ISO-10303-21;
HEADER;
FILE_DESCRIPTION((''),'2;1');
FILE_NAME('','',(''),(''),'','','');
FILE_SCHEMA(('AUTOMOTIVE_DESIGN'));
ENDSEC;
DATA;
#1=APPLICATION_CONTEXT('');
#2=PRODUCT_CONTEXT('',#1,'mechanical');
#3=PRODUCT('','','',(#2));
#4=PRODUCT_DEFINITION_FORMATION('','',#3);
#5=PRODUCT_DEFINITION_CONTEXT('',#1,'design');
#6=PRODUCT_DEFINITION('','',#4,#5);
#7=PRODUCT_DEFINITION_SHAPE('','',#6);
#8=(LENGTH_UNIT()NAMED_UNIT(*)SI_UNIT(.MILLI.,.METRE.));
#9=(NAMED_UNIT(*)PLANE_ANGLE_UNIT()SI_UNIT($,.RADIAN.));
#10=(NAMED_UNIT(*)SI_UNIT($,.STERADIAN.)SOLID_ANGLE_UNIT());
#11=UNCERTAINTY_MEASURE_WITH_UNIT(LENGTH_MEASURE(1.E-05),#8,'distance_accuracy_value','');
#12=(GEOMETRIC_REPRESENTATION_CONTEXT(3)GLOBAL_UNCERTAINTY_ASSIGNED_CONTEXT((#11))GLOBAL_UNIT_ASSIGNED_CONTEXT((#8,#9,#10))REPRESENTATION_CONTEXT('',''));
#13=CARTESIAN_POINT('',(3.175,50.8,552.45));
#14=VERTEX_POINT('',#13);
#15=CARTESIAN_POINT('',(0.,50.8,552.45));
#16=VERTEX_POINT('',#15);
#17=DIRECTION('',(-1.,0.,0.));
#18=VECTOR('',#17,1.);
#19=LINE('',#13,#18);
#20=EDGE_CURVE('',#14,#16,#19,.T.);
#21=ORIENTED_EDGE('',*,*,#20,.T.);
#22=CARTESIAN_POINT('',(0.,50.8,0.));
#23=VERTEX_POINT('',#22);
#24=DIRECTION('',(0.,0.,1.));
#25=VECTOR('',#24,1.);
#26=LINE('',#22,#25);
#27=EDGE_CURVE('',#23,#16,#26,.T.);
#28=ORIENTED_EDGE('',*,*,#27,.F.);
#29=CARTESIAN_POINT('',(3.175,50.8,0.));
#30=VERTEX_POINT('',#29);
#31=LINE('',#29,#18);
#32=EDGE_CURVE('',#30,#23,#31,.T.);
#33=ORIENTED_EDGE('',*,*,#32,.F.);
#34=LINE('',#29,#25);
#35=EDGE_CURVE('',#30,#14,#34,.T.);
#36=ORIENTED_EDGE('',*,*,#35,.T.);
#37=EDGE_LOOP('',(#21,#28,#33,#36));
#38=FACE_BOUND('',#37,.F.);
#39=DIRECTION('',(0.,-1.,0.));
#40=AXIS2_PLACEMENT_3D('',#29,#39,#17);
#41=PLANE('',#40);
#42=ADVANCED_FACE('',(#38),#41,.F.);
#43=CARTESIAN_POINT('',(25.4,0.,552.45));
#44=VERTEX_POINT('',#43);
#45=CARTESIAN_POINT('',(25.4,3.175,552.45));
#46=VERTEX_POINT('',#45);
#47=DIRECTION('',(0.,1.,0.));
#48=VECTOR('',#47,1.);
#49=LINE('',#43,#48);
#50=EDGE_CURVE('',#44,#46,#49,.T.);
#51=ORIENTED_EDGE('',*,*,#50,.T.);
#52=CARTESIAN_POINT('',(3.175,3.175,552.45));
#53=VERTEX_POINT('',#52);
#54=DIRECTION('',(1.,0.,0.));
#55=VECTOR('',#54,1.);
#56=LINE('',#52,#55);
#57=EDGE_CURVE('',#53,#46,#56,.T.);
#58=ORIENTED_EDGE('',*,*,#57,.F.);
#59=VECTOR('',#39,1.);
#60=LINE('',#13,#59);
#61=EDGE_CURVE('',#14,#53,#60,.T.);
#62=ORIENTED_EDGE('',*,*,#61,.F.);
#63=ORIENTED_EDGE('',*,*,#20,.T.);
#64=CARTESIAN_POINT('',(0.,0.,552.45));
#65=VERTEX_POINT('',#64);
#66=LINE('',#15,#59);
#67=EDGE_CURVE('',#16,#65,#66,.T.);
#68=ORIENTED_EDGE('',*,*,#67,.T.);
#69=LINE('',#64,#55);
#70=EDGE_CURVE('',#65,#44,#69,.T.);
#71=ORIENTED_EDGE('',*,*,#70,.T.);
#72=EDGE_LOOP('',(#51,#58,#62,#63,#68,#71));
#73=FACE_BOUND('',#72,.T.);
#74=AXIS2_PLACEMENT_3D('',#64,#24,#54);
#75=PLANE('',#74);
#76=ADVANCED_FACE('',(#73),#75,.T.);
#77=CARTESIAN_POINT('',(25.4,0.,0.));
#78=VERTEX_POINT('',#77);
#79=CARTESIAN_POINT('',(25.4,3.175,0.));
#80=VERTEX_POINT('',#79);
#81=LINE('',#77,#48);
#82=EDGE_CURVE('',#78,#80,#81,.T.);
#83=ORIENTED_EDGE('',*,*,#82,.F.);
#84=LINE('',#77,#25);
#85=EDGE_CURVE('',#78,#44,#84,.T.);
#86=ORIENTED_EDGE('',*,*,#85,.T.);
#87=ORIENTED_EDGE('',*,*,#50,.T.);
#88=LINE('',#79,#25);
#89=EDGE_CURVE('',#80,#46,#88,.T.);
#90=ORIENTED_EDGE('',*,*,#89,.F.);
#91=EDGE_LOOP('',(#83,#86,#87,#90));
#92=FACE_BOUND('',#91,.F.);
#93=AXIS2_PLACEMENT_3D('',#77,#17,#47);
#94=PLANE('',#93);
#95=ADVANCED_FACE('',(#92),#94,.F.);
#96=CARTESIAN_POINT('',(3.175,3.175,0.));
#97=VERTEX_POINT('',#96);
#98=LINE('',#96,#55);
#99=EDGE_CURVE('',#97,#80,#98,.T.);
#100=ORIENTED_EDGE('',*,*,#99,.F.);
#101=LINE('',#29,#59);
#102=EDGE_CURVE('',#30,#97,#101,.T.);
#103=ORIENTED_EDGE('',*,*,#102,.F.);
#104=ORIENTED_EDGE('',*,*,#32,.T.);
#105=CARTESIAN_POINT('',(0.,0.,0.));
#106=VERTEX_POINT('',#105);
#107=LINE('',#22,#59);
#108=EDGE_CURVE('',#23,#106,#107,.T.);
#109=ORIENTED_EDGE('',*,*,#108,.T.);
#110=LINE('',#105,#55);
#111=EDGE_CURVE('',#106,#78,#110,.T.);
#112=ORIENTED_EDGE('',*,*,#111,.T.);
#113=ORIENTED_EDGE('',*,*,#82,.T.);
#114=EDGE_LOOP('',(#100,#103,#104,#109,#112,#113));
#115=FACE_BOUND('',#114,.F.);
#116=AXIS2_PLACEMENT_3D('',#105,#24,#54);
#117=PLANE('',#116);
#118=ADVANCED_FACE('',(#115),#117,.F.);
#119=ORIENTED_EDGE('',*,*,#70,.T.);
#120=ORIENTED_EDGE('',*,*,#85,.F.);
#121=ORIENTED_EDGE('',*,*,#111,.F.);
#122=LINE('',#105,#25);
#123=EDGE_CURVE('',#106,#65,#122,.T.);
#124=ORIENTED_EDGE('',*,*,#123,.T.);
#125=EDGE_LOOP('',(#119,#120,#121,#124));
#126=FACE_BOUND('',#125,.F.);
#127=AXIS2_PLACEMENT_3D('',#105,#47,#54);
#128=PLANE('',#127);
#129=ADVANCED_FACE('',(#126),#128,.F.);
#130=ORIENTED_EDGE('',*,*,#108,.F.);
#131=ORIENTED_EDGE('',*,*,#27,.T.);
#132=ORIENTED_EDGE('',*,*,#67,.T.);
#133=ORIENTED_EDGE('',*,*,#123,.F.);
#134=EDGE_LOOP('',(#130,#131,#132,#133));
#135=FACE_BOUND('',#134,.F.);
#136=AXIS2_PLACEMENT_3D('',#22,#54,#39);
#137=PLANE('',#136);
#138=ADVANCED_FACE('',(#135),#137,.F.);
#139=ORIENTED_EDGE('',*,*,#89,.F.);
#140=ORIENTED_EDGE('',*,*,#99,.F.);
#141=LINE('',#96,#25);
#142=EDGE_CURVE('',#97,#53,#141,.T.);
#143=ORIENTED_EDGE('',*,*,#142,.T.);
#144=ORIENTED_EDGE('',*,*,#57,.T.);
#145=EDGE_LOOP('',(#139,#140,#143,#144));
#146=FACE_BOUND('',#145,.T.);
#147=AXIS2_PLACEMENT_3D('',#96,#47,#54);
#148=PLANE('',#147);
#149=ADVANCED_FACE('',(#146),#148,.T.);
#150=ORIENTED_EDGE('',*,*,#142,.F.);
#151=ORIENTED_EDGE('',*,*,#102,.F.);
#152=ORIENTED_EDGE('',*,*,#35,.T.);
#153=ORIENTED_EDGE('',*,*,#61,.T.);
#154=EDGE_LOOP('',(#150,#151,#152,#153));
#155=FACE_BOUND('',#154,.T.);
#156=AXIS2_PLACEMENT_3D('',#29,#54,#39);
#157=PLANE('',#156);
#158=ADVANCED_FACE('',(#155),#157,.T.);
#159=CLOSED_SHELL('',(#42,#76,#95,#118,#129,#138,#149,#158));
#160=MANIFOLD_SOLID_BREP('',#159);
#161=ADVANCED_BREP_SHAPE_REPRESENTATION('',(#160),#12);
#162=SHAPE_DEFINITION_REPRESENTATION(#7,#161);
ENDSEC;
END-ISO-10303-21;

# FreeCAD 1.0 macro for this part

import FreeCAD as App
import Part
import Sketcher
from FreeCAD import Vector
Q = App.Units.Quantity


def add_polygon(sketch, points):
    """Adds a closed chain of lines whose ends are joined by coincident constraints."""
    first, n = sketch.GeometryCount, len(points)
    for a, b in zip(points, points[1:] + points[:1]):
        sketch.addGeometry(Part.LineSegment(App.Vector(*a, 0), App.Vector(*b, 0)), False)
    for i in range(n):
        sketch.addConstraint(Sketcher.Constraint("Coincident", first + i, 2, first + (i + 1) % n, 1))

doc = App.newDocument("Part")
body = doc.addObject("PartDesign::Body", "Body")

# Sketch on XY plane
sketch1 = body.newObject("Sketcher::SketchObject", "Sketch")
sketch1.AttachmentSupport = (doc.getObject("XY_Plane"), [""])
sketch1.MapMode = "FlatFace"
add_polygon(sketch1, [(0, 50.8), (0, 0), (25.4, 0), (25.4, 3.175), (3.175, 3.175), (3.175, 50.8)])  # lines 0-5
sketch1.addConstraint([
    Sketcher.Constraint("Vertical", 0),
    Sketcher.Constraint("Horizontal", 1),
    Sketcher.Constraint("Vertical", 2),
    Sketcher.Constraint("Horizontal", 3),
    Sketcher.Constraint("Vertical", 4),
    Sketcher.Constraint("Horizontal", 5),
    Sketcher.Constraint("Coincident", 0, 2, -1, 1),
    Sketcher.Constraint("Equal", 5, 2),
    Sketcher.Constraint("DistanceX", 1, 1, 1, 2, Q("1 in")),
    Sketcher.Constraint("DistanceY", 0, 2, 0, 1, Q("2 in")),
    Sketcher.Constraint("DistanceX", 5, 2, 5, 1, Q("0.125 in")),
])
pad1 = body.newObject("PartDesign::Pad", "Pad")
pad1.Profile = sketch1
pad1.Length = Q("21.75 in")

doc.recompute()
